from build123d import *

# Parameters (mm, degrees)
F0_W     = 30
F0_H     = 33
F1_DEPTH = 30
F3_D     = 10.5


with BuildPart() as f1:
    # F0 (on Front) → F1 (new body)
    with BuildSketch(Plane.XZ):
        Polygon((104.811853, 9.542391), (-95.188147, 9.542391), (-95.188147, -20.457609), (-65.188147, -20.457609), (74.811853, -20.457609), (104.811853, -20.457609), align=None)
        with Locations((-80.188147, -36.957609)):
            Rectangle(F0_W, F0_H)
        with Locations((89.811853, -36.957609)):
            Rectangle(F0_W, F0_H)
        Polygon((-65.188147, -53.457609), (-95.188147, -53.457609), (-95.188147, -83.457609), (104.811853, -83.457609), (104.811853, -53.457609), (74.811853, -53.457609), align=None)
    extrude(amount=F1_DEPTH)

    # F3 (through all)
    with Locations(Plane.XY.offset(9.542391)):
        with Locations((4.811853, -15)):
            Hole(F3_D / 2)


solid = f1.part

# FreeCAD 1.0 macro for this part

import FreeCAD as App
import Part
import Sketcher
from FreeCAD import Vector


def add_polygon(sketch, points):
    """Adds a closed chain of lines whose ends are joined by coincident constraints."""
    first, n = sketch.GeometryCount, len(points)
    for a, b in zip(points, points[1:] + points[:1]):
        sketch.addGeometry(Part.LineSegment(App.Vector(*a, 0), App.Vector(*b, 0)), False)
    for i in range(n):
        sketch.addConstraint(Sketcher.Constraint("Coincident", first + i, 2, first + (i + 1) % n, 1))

doc = App.newDocument("Part")
params = doc.addObject("Spreadsheet::Sheet", "Params")
for row, (alias, value) in enumerate([
    ("sketch1_width", "200 mm"),
    ("sketch1_width2", "140 mm"),
    ("sketch1_height", "93 mm"),
    ("sketch1_height2", "33 mm"),
    ("pad1_length", "30 mm"),
    ("sketch2_diameter", "10.5 mm"),
    ("hole_diameter", "10.5 mm"),
], start=1):
    params.set(f"A{row}", alias)
    params.set(f"B{row}", "=" + value)
    params.setAlias(f"B{row}", alias)

body = doc.addObject("PartDesign::Body", "Body")

# Sketch on XZ plane
sketch1 = body.newObject("Sketcher::SketchObject", "Sketch")
sketch1.AttachmentSupport = (doc.getObject("XZ_Plane"), [""])
sketch1.MapMode = "FlatFace"
add_polygon(sketch1, [(104.811853, 9.542391), (-95.188147, 9.542391), (-95.188147, -83.457609), (104.811853, -83.457609)])  # lines 0-3
add_polygon(sketch1, [(-65.188147, -53.457609), (-65.188147, -20.457609), (74.811853, -20.457609), (74.811853, -53.457609)])  # lines 4-7
sketch1.addConstraint([
    Sketcher.Constraint("Horizontal", 0),
    Sketcher.Constraint("Vertical", 1),
    Sketcher.Constraint("Horizontal", 2),
    Sketcher.Constraint("Vertical", 3),
    Sketcher.Constraint("Vertical", 4),
    Sketcher.Constraint("Horizontal", 5),
    Sketcher.Constraint("Vertical", 6),
    Sketcher.Constraint("Horizontal", 7),
    Sketcher.Constraint("DistanceX", 0, 2, 0, 1, 200.0),
    Sketcher.Constraint("DistanceX", 5, 1, 5, 2, 140.0),
    Sketcher.Constraint("DistanceY", 1, 2, 1, 1, 93.0),
    Sketcher.Constraint("DistanceY", 4, 1, 4, 2, 33.0),
    Sketcher.Constraint("DistanceX", 0, 2, 4, 2, 30.0),
    Sketcher.Constraint("DistanceY", 4, 2, 0, 2, 30.0),
    Sketcher.Constraint("DistanceY", -1, 1, 0, 2, 9.542391),
    Sketcher.Constraint("DistanceX", 0, 2, -1, 1, 95.188147),
])
sketch1.setExpression("Constraints[16]", "Params.sketch1_width")
sketch1.setExpression("Constraints[17]", "Params.sketch1_width2")
sketch1.setExpression("Constraints[18]", "Params.sketch1_height")
sketch1.setExpression("Constraints[19]", "Params.sketch1_height2")
pad1 = body.newObject("PartDesign::Pad", "Pad")
pad1.Profile = sketch1
pad1.setExpression("Length", "Params.pad1_length")

# Sketch on XY plane
sketch2 = body.newObject("Sketcher::SketchObject", "Sketch001")
sketch2.AttachmentSupport = (doc.getObject("XY_Plane"), [""])
sketch2.MapMode = "FlatFace"
sketch2.AttachmentOffset = App.Placement(Vector(0, 0, 9.542391), App.Rotation())
sketch2.addGeometry(Part.Circle(Vector(4.811853, -15, 0), Vector(0, 0, 1), 5.25), False)
sketch2.addConstraint([
    Sketcher.Constraint("Diameter", 0, 10.5),
    Sketcher.Constraint("DistanceY", 0, 3, -1, 1, 15.0),
    Sketcher.Constraint("DistanceX", -1, 1, 0, 3, 4.811853),
])
sketch2.setExpression("Constraints[0]", "Params.sketch2_diameter")
doc.recompute()
hole = body.newObject("PartDesign::Hole", "Hole")
hole.Profile = sketch2
hole.ThreadType = "None"
hole.setExpression("Diameter", "Params.hole_diameter")
hole.DepthType = "ThroughAll"

doc.recompute()
